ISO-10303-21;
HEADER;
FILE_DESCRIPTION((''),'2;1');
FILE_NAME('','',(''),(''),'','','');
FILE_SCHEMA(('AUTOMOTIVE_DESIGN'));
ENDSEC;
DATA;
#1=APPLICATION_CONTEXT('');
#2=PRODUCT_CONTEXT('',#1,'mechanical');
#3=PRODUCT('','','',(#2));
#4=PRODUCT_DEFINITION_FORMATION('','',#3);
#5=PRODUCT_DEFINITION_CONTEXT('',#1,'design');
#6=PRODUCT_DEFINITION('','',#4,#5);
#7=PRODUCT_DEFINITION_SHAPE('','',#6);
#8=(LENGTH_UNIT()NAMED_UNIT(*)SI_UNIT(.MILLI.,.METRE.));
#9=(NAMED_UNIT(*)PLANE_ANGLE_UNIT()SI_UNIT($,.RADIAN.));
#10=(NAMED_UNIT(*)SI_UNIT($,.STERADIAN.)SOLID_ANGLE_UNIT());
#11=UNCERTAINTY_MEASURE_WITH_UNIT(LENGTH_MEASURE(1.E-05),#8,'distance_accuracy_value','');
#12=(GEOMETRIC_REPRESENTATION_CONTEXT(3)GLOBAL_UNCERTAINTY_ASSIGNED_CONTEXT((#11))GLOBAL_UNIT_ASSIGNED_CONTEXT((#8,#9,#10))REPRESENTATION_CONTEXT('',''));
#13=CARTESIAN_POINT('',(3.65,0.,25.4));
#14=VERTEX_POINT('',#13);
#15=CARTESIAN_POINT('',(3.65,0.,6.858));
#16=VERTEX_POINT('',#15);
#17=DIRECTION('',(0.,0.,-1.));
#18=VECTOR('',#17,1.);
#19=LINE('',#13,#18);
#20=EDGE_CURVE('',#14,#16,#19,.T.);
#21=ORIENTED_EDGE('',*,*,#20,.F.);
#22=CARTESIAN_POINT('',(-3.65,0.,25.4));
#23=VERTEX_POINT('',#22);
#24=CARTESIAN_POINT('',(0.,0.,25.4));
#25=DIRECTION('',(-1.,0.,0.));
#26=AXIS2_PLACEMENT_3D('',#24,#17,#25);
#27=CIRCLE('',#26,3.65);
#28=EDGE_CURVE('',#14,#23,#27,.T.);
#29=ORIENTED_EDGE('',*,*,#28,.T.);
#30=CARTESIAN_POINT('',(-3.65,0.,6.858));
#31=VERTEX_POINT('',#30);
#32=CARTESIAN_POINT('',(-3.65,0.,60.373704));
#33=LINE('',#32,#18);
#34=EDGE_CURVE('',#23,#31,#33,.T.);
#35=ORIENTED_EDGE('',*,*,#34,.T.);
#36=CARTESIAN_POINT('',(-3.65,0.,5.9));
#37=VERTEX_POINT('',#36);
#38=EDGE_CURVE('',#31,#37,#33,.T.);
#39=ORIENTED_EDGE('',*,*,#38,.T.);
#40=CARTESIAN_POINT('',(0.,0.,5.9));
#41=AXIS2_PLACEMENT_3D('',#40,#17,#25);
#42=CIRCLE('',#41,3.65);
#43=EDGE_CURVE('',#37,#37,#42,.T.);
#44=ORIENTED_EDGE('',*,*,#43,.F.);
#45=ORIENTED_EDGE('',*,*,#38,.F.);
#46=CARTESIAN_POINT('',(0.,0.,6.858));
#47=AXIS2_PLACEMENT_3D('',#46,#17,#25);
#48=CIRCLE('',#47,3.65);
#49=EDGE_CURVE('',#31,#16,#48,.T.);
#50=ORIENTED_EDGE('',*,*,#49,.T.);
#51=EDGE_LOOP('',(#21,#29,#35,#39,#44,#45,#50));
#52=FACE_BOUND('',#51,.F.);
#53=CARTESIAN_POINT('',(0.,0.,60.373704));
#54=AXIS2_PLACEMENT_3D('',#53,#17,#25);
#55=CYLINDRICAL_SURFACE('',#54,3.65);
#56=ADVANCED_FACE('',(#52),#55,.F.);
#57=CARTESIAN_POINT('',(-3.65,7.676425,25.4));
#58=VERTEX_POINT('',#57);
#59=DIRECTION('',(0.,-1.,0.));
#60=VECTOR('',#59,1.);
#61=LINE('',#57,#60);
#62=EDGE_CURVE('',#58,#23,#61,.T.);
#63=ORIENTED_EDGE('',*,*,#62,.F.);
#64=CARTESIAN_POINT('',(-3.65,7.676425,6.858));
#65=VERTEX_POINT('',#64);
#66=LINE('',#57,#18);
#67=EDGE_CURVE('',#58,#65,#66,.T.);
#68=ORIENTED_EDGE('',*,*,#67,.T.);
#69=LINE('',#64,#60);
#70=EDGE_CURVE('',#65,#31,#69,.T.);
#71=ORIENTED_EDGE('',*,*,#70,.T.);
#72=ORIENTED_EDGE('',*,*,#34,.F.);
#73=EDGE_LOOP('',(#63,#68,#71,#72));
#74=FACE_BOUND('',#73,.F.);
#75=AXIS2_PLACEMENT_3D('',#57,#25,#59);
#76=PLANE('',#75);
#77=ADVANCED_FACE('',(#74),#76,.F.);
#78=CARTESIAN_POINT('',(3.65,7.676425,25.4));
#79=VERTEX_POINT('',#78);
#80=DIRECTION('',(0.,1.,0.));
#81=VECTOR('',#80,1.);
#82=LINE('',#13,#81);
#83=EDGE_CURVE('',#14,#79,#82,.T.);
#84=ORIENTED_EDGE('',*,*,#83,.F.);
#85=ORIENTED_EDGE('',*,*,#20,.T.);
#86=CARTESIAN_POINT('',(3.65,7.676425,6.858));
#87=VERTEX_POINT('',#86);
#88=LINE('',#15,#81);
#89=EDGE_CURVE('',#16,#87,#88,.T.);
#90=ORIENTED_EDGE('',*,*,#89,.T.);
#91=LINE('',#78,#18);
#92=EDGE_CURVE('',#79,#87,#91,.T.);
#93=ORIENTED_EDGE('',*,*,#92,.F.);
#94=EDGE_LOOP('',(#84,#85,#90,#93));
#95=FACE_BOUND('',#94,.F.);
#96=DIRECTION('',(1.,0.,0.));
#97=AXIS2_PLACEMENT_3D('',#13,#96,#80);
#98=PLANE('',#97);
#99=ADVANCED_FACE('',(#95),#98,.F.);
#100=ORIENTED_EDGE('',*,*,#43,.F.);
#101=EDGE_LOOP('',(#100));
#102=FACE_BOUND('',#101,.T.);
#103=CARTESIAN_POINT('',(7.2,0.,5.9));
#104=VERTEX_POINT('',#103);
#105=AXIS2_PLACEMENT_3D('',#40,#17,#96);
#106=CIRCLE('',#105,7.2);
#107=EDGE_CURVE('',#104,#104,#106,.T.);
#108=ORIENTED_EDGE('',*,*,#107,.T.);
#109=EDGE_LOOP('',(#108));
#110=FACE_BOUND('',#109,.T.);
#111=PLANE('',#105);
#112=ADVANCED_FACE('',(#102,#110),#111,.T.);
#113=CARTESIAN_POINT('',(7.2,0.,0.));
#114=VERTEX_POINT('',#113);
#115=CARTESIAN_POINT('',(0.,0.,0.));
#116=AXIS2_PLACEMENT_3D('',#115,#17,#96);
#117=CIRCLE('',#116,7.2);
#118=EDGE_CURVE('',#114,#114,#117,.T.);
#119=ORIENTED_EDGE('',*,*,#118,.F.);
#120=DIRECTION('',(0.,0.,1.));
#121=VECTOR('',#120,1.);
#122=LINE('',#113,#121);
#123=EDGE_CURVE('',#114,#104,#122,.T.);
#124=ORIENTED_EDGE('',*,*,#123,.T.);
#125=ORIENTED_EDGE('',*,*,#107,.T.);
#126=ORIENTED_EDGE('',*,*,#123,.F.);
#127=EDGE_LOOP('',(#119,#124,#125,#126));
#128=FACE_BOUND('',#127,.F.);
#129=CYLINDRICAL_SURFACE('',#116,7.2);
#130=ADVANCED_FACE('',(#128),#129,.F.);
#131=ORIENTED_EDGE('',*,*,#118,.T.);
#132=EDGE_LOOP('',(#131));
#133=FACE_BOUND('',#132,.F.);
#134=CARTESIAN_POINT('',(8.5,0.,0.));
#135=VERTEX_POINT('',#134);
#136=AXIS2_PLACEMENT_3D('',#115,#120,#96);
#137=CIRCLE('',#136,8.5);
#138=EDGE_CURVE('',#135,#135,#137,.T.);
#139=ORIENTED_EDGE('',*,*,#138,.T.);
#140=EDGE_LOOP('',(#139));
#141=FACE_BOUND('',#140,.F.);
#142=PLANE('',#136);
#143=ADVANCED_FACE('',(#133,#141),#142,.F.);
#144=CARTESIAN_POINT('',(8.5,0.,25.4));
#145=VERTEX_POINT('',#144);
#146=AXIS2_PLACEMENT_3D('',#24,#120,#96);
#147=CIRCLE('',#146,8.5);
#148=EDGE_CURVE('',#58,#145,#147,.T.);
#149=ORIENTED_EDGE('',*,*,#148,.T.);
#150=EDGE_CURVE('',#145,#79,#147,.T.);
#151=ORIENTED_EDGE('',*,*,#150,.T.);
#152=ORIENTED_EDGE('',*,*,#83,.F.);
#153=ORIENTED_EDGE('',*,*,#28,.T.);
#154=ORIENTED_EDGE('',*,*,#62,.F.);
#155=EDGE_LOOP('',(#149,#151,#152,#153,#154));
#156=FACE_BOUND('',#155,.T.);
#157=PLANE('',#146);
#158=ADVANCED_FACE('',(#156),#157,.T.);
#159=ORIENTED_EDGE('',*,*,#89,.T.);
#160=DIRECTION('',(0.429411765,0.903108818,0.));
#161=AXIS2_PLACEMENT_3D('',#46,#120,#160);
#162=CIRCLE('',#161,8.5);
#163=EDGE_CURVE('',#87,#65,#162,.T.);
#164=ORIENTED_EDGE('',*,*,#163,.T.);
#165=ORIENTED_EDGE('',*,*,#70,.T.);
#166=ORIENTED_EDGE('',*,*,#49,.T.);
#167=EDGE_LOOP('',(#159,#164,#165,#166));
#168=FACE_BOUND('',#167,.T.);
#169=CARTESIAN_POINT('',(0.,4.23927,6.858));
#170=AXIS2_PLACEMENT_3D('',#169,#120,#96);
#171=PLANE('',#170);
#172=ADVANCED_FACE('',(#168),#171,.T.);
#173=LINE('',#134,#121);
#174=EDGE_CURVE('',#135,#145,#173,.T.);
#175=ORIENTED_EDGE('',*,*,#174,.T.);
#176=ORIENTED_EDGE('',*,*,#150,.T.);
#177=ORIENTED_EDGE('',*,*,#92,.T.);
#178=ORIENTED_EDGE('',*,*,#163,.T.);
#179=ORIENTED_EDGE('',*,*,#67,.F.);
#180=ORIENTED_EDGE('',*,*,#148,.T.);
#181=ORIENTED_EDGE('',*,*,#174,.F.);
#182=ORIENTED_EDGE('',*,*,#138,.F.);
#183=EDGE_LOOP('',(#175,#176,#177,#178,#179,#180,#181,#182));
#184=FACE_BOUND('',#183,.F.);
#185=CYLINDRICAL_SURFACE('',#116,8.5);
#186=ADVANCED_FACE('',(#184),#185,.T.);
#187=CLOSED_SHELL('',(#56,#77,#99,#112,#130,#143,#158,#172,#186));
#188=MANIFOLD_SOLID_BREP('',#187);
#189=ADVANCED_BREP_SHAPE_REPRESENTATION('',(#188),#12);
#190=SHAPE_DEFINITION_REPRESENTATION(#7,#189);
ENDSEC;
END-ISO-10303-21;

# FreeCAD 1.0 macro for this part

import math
import FreeCAD as App
import Part
import Sketcher

V = App.Vector

doc = App.newDocument("Part")
params = doc.addObject("Spreadsheet::Sheet", "Params")
for row, (alias, value) in enumerate([
    ("sketch1_diameter", "17 mm"),
    ("pad1_length", "25.4 mm"),
    ("sketch2_diameter", "7.3 mm"),
    ("hole_diameter", "7.3 mm"),
    ("sketch3_radius", "8.5 mm"),
    ("sketch3_radius2", "3.65 mm"),
    ("pocket1_length", "18.542 mm"),
    ("sketch4_diameter", "14.4 mm"),
    ("sketch4_diameter2", "7.3 mm"),
    ("pocket2_length", "5.9 mm"),
], start=1):
    params.set(f"A{row}", alias)
    params.set(f"B{row}", "=" + value)
    params.setAlias(f"B{row}", alias)

body = doc.addObject("PartDesign::Body", "Body")

# Sketch on XY plane
sketch1 = body.newObject("Sketcher::SketchObject", "Sketch")
sketch1.AttachmentSupport = (doc.getObject("XY_Plane"), [""])
sketch1.MapMode = "FlatFace"
sketch1.addGeometry(Part.Circle(V(0, 0, 0), V(0, 0, 1), 8), False)
sketch1.addConstraint(Sketcher.Constraint("Coincident", 0, 3, -1, 1))
sketch1.addConstraint(Sketcher.Constraint("Diameter", 0, 17.0))
sketch1.setExpression("Constraints[1]", "Params.sketch1_diameter")
pad1 = body.newObject("PartDesign::Pad", "Pad")
pad1.Profile = sketch1
pad1.setExpression("Length", "Params.pad1_length")

# Sketch on XY plane
sketch2 = body.newObject("Sketcher::SketchObject", "Sketch001")
sketch2.AttachmentSupport = (doc.getObject("XY_Plane"), [""])
sketch2.MapMode = "FlatFace"
sketch2.AttachmentOffset = App.Placement(V(0, 0, 25.4), App.Rotation())
sketch2.addGeometry(Part.Circle(V(0, 0, 0), V(0, 0, 1), 3.6), False)
sketch2.addConstraint(Sketcher.Constraint("Coincident", 0, 3, -1, 1))
sketch2.addConstraint(Sketcher.Constraint("Diameter", 0, 7.3))
sketch2.setExpression("Constraints[1]", "Params.sketch2_diameter")
doc.recompute()
hole = body.newObject("PartDesign::Hole", "Hole")
hole.Profile = sketch2
hole.ThreadType = "None"
hole.setExpression("Diameter", "Params.hole_diameter")
hole.DepthType = "ThroughAll"

# Sketch on XY plane
sketch3 = body.newObject("Sketcher::SketchObject", "Sketch002")
sketch3.AttachmentSupport = (doc.getObject("XY_Plane"), [""])
sketch3.MapMode = "FlatFace"
sketch3.AttachmentOffset = App.Placement(V(0, 0, 25.4), App.Rotation())
sketch3.addGeometry(Part.LineSegment(V(-3.6, 7.7, 0), V(-3.6, 0, 0)), False)
sketch3.addGeometry(Part.ArcOfCircle(Part.Circle(V(0, 0, 0), V(0, 0, 1), 3.6), math.radians(0), math.radians(180)), False)
sketch3.addGeometry(Part.LineSegment(V(3.6, 0, 0), V(3.6, 7.7, 0)), False)
sketch3.addGeometry(Part.ArcOfCircle(Part.Circle(V(0, 0, 0), V(0, 0, 1), 8.5), math.radians(65), math.radians(115)), False)
sketch3.addConstraint(Sketcher.Constraint("Tangent", 0, 2, 1, 2))
sketch3.addConstraint(Sketcher.Constraint("Tangent", 1, 1, 2, 1))
sketch3.addConstraint(Sketcher.Constraint("Coincident", 2, 2, 3, 1))
sketch3.addConstraint(Sketcher.Constraint("Coincident", 3, 2, 0, 1))
sketch3.addConstraint(Sketcher.Constraint("Vertical", 0))
sketch3.addConstraint(Sketcher.Constraint("Vertical", 2))
sketch3.addConstraint(Sketcher.Constraint("Coincident", 1, 3, -1, 1))
sketch3.addConstraint(Sketcher.Constraint("Coincident", 3, 3, -1, 1))
sketch3.addConstraint(Sketcher.Constraint("Radius", 3, 8.5))
sketch3.addConstraint(Sketcher.Constraint("Radius", 1, 3.65))
sketch3.setExpression("Constraints[8]", "Params.sketch3_radius")
sketch3.setExpression("Constraints[9]", "Params.sketch3_radius2")
pocket1 = body.newObject("PartDesign::Pocket", "Pocket")
pocket1.Profile = sketch3
pocket1.setExpression("Length", "Params.pocket1_length")

# Sketch on XY plane
sketch4 = body.newObject("Sketcher::SketchObject", "Sketch003")
sketch4.AttachmentSupport = (doc.getObject("XY_Plane"), [""])
sketch4.MapMode = "FlatFace"
sketch4.addGeometry(Part.Circle(V(0, 0, 0), V(0, 0, 1), 7.2), False)
sketch4.addGeometry(Part.Circle(V(0, 0, 0), V(0, 0, 1), 3.6), False)
sketch4.addConstraint(Sketcher.Constraint("Coincident", 0, 3, -1, 1))
sketch4.addConstraint(Sketcher.Constraint("Coincident", 1, 3, -1, 1))
sketch4.addConstraint(Sketcher.Constraint("Diameter", 0, 14.4))
sketch4.addConstraint(Sketcher.Constraint("Diameter", 1, 7.3))
sketch4.setExpression("Constraints[2]", "Params.sketch4_diameter")
sketch4.setExpression("Constraints[3]", "Params.sketch4_diameter2")
pocket2 = body.newObject("PartDesign::Pocket", "Pocket001")
pocket2.Profile = sketch4
pocket2.setExpression("Length", "Params.pocket2_length")
pocket2.Reversed = True

doc.recompute()
